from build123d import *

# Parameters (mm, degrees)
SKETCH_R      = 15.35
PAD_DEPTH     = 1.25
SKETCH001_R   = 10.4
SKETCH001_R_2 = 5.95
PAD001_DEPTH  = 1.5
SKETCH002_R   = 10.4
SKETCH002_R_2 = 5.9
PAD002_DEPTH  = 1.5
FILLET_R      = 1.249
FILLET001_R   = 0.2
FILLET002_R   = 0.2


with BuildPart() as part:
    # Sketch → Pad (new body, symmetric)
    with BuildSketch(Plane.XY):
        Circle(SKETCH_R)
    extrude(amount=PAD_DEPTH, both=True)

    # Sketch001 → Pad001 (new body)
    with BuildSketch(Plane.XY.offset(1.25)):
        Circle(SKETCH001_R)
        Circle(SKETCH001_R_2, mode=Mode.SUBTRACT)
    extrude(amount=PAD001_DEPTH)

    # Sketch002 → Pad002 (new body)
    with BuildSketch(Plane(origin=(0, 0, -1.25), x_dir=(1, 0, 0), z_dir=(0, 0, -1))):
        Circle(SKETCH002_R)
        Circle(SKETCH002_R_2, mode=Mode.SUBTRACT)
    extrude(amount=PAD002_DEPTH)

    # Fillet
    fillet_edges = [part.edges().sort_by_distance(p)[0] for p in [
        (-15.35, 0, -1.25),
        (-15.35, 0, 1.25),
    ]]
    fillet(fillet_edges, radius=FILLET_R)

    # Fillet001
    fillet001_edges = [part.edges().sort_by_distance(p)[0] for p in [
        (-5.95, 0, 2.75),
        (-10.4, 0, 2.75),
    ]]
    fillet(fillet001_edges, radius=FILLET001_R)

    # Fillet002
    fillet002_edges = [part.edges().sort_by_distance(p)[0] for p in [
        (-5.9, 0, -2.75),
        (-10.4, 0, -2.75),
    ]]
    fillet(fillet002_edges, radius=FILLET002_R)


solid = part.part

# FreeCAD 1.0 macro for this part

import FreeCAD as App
import Part
import Sketcher

V = App.Vector


def edges_at(feature, points):
    """Names of the edges that pass closest to the given points."""
    edges = feature.Shape.Edges
    near = lambda p: min(range(len(edges)), key=lambda i: edges[i].distToShape(Part.Vertex(*p))[0])
    return sorted({f"Edge{near(p) + 1}" for p in points})

doc = App.newDocument("Part")
body = doc.addObject("PartDesign::Body", "Body")

# Sketch on XY plane
sketch1 = body.newObject("Sketcher::SketchObject", "Sketch")
sketch1.AttachmentSupport = (doc.getObject("XY_Plane"), [""])
sketch1.MapMode = "FlatFace"
sketch1.addGeometry(Part.Circle(V(0, 0, 0), V(0, 0, 1), 15), False)
sketch1.addConstraint([
    Sketcher.Constraint("Coincident", 0, 3, -1, 1),
    Sketcher.Constraint("Diameter", 0, 30.7),
])
pad1 = body.newObject("PartDesign::Pad", "Pad")
pad1.Profile = sketch1
pad1.Length = 2.5
pad1.Midplane = True

# Sketch on XY plane
sketch2 = body.newObject("Sketcher::SketchObject", "Sketch001")
sketch2.AttachmentSupport = (doc.getObject("XY_Plane"), [""])
sketch2.MapMode = "FlatFace"
sketch2.AttachmentOffset = App.Placement(V(0, 0, 1.25), App.Rotation())
sketch2.addGeometry([
    Part.Circle(V(0, 0, 0), V(0, 0, 1), 10),
    Part.Circle(V(0, 0, 0), V(0, 0, 1), 6),
], False)
sketch2.addConstraint([
    Sketcher.Constraint("Coincident", 0, 3, -1, 1),
    Sketcher.Constraint("Coincident", 1, 3, -1, 1),
    Sketcher.Constraint("Diameter", 0, 20.8),
    Sketcher.Constraint("Diameter", 1, 11.9),
])
pad2 = body.newObject("PartDesign::Pad", "Pad001")
pad2.Profile = sketch2
pad2.Length = 1.5

# Sketch on XY plane
sketch3 = body.newObject("Sketcher::SketchObject", "Sketch002")
sketch3.AttachmentSupport = (doc.getObject("XY_Plane"), [""])
sketch3.MapMode = "FlatFace"
sketch3.AttachmentOffset = App.Placement(V(0, 0, -1.25), App.Rotation())
sketch3.addGeometry([
    Part.Circle(V(0, 0, 0), V(0, 0, 1), 10),
    Part.Circle(V(0, 0, 0), V(0, 0, 1), 6),
], False)
sketch3.addConstraint([
    Sketcher.Constraint("Coincident", 0, 3, -1, 1),
    Sketcher.Constraint("Coincident", 1, 3, -1, 1),
    Sketcher.Constraint("Diameter", 0, 20.8),
    Sketcher.Constraint("Diameter", 1, 11.8),
])
pad3 = body.newObject("PartDesign::Pad", "Pad002")
pad3.Profile = sketch3
pad3.Length = 1.5
pad3.Reversed = True
doc.recompute()

fillet = body.newObject("PartDesign::Fillet", "Fillet")
fillet.Base = (pad3, edges_at(pad3, [(-15.35, 0, -1.25), (-15.35, 0, 1.25)]))
fillet.Radius = 1.249
doc.recompute()

fillet2 = body.newObject("PartDesign::Fillet", "Fillet001")
fillet2.Base = (fillet, edges_at(fillet, [(-5.95, 0, 2.75), (-10.4, 0, 2.75)]))
fillet2.Radius = 0.2
doc.recompute()

fillet3 = body.newObject("PartDesign::Fillet", "Fillet002")
fillet3.Base = (fillet2, edges_at(fillet2, [(-5.9, 0, -2.75), (-10.4, 0, -2.75)]))
fillet3.Radius = 0.2

doc.recompute()
